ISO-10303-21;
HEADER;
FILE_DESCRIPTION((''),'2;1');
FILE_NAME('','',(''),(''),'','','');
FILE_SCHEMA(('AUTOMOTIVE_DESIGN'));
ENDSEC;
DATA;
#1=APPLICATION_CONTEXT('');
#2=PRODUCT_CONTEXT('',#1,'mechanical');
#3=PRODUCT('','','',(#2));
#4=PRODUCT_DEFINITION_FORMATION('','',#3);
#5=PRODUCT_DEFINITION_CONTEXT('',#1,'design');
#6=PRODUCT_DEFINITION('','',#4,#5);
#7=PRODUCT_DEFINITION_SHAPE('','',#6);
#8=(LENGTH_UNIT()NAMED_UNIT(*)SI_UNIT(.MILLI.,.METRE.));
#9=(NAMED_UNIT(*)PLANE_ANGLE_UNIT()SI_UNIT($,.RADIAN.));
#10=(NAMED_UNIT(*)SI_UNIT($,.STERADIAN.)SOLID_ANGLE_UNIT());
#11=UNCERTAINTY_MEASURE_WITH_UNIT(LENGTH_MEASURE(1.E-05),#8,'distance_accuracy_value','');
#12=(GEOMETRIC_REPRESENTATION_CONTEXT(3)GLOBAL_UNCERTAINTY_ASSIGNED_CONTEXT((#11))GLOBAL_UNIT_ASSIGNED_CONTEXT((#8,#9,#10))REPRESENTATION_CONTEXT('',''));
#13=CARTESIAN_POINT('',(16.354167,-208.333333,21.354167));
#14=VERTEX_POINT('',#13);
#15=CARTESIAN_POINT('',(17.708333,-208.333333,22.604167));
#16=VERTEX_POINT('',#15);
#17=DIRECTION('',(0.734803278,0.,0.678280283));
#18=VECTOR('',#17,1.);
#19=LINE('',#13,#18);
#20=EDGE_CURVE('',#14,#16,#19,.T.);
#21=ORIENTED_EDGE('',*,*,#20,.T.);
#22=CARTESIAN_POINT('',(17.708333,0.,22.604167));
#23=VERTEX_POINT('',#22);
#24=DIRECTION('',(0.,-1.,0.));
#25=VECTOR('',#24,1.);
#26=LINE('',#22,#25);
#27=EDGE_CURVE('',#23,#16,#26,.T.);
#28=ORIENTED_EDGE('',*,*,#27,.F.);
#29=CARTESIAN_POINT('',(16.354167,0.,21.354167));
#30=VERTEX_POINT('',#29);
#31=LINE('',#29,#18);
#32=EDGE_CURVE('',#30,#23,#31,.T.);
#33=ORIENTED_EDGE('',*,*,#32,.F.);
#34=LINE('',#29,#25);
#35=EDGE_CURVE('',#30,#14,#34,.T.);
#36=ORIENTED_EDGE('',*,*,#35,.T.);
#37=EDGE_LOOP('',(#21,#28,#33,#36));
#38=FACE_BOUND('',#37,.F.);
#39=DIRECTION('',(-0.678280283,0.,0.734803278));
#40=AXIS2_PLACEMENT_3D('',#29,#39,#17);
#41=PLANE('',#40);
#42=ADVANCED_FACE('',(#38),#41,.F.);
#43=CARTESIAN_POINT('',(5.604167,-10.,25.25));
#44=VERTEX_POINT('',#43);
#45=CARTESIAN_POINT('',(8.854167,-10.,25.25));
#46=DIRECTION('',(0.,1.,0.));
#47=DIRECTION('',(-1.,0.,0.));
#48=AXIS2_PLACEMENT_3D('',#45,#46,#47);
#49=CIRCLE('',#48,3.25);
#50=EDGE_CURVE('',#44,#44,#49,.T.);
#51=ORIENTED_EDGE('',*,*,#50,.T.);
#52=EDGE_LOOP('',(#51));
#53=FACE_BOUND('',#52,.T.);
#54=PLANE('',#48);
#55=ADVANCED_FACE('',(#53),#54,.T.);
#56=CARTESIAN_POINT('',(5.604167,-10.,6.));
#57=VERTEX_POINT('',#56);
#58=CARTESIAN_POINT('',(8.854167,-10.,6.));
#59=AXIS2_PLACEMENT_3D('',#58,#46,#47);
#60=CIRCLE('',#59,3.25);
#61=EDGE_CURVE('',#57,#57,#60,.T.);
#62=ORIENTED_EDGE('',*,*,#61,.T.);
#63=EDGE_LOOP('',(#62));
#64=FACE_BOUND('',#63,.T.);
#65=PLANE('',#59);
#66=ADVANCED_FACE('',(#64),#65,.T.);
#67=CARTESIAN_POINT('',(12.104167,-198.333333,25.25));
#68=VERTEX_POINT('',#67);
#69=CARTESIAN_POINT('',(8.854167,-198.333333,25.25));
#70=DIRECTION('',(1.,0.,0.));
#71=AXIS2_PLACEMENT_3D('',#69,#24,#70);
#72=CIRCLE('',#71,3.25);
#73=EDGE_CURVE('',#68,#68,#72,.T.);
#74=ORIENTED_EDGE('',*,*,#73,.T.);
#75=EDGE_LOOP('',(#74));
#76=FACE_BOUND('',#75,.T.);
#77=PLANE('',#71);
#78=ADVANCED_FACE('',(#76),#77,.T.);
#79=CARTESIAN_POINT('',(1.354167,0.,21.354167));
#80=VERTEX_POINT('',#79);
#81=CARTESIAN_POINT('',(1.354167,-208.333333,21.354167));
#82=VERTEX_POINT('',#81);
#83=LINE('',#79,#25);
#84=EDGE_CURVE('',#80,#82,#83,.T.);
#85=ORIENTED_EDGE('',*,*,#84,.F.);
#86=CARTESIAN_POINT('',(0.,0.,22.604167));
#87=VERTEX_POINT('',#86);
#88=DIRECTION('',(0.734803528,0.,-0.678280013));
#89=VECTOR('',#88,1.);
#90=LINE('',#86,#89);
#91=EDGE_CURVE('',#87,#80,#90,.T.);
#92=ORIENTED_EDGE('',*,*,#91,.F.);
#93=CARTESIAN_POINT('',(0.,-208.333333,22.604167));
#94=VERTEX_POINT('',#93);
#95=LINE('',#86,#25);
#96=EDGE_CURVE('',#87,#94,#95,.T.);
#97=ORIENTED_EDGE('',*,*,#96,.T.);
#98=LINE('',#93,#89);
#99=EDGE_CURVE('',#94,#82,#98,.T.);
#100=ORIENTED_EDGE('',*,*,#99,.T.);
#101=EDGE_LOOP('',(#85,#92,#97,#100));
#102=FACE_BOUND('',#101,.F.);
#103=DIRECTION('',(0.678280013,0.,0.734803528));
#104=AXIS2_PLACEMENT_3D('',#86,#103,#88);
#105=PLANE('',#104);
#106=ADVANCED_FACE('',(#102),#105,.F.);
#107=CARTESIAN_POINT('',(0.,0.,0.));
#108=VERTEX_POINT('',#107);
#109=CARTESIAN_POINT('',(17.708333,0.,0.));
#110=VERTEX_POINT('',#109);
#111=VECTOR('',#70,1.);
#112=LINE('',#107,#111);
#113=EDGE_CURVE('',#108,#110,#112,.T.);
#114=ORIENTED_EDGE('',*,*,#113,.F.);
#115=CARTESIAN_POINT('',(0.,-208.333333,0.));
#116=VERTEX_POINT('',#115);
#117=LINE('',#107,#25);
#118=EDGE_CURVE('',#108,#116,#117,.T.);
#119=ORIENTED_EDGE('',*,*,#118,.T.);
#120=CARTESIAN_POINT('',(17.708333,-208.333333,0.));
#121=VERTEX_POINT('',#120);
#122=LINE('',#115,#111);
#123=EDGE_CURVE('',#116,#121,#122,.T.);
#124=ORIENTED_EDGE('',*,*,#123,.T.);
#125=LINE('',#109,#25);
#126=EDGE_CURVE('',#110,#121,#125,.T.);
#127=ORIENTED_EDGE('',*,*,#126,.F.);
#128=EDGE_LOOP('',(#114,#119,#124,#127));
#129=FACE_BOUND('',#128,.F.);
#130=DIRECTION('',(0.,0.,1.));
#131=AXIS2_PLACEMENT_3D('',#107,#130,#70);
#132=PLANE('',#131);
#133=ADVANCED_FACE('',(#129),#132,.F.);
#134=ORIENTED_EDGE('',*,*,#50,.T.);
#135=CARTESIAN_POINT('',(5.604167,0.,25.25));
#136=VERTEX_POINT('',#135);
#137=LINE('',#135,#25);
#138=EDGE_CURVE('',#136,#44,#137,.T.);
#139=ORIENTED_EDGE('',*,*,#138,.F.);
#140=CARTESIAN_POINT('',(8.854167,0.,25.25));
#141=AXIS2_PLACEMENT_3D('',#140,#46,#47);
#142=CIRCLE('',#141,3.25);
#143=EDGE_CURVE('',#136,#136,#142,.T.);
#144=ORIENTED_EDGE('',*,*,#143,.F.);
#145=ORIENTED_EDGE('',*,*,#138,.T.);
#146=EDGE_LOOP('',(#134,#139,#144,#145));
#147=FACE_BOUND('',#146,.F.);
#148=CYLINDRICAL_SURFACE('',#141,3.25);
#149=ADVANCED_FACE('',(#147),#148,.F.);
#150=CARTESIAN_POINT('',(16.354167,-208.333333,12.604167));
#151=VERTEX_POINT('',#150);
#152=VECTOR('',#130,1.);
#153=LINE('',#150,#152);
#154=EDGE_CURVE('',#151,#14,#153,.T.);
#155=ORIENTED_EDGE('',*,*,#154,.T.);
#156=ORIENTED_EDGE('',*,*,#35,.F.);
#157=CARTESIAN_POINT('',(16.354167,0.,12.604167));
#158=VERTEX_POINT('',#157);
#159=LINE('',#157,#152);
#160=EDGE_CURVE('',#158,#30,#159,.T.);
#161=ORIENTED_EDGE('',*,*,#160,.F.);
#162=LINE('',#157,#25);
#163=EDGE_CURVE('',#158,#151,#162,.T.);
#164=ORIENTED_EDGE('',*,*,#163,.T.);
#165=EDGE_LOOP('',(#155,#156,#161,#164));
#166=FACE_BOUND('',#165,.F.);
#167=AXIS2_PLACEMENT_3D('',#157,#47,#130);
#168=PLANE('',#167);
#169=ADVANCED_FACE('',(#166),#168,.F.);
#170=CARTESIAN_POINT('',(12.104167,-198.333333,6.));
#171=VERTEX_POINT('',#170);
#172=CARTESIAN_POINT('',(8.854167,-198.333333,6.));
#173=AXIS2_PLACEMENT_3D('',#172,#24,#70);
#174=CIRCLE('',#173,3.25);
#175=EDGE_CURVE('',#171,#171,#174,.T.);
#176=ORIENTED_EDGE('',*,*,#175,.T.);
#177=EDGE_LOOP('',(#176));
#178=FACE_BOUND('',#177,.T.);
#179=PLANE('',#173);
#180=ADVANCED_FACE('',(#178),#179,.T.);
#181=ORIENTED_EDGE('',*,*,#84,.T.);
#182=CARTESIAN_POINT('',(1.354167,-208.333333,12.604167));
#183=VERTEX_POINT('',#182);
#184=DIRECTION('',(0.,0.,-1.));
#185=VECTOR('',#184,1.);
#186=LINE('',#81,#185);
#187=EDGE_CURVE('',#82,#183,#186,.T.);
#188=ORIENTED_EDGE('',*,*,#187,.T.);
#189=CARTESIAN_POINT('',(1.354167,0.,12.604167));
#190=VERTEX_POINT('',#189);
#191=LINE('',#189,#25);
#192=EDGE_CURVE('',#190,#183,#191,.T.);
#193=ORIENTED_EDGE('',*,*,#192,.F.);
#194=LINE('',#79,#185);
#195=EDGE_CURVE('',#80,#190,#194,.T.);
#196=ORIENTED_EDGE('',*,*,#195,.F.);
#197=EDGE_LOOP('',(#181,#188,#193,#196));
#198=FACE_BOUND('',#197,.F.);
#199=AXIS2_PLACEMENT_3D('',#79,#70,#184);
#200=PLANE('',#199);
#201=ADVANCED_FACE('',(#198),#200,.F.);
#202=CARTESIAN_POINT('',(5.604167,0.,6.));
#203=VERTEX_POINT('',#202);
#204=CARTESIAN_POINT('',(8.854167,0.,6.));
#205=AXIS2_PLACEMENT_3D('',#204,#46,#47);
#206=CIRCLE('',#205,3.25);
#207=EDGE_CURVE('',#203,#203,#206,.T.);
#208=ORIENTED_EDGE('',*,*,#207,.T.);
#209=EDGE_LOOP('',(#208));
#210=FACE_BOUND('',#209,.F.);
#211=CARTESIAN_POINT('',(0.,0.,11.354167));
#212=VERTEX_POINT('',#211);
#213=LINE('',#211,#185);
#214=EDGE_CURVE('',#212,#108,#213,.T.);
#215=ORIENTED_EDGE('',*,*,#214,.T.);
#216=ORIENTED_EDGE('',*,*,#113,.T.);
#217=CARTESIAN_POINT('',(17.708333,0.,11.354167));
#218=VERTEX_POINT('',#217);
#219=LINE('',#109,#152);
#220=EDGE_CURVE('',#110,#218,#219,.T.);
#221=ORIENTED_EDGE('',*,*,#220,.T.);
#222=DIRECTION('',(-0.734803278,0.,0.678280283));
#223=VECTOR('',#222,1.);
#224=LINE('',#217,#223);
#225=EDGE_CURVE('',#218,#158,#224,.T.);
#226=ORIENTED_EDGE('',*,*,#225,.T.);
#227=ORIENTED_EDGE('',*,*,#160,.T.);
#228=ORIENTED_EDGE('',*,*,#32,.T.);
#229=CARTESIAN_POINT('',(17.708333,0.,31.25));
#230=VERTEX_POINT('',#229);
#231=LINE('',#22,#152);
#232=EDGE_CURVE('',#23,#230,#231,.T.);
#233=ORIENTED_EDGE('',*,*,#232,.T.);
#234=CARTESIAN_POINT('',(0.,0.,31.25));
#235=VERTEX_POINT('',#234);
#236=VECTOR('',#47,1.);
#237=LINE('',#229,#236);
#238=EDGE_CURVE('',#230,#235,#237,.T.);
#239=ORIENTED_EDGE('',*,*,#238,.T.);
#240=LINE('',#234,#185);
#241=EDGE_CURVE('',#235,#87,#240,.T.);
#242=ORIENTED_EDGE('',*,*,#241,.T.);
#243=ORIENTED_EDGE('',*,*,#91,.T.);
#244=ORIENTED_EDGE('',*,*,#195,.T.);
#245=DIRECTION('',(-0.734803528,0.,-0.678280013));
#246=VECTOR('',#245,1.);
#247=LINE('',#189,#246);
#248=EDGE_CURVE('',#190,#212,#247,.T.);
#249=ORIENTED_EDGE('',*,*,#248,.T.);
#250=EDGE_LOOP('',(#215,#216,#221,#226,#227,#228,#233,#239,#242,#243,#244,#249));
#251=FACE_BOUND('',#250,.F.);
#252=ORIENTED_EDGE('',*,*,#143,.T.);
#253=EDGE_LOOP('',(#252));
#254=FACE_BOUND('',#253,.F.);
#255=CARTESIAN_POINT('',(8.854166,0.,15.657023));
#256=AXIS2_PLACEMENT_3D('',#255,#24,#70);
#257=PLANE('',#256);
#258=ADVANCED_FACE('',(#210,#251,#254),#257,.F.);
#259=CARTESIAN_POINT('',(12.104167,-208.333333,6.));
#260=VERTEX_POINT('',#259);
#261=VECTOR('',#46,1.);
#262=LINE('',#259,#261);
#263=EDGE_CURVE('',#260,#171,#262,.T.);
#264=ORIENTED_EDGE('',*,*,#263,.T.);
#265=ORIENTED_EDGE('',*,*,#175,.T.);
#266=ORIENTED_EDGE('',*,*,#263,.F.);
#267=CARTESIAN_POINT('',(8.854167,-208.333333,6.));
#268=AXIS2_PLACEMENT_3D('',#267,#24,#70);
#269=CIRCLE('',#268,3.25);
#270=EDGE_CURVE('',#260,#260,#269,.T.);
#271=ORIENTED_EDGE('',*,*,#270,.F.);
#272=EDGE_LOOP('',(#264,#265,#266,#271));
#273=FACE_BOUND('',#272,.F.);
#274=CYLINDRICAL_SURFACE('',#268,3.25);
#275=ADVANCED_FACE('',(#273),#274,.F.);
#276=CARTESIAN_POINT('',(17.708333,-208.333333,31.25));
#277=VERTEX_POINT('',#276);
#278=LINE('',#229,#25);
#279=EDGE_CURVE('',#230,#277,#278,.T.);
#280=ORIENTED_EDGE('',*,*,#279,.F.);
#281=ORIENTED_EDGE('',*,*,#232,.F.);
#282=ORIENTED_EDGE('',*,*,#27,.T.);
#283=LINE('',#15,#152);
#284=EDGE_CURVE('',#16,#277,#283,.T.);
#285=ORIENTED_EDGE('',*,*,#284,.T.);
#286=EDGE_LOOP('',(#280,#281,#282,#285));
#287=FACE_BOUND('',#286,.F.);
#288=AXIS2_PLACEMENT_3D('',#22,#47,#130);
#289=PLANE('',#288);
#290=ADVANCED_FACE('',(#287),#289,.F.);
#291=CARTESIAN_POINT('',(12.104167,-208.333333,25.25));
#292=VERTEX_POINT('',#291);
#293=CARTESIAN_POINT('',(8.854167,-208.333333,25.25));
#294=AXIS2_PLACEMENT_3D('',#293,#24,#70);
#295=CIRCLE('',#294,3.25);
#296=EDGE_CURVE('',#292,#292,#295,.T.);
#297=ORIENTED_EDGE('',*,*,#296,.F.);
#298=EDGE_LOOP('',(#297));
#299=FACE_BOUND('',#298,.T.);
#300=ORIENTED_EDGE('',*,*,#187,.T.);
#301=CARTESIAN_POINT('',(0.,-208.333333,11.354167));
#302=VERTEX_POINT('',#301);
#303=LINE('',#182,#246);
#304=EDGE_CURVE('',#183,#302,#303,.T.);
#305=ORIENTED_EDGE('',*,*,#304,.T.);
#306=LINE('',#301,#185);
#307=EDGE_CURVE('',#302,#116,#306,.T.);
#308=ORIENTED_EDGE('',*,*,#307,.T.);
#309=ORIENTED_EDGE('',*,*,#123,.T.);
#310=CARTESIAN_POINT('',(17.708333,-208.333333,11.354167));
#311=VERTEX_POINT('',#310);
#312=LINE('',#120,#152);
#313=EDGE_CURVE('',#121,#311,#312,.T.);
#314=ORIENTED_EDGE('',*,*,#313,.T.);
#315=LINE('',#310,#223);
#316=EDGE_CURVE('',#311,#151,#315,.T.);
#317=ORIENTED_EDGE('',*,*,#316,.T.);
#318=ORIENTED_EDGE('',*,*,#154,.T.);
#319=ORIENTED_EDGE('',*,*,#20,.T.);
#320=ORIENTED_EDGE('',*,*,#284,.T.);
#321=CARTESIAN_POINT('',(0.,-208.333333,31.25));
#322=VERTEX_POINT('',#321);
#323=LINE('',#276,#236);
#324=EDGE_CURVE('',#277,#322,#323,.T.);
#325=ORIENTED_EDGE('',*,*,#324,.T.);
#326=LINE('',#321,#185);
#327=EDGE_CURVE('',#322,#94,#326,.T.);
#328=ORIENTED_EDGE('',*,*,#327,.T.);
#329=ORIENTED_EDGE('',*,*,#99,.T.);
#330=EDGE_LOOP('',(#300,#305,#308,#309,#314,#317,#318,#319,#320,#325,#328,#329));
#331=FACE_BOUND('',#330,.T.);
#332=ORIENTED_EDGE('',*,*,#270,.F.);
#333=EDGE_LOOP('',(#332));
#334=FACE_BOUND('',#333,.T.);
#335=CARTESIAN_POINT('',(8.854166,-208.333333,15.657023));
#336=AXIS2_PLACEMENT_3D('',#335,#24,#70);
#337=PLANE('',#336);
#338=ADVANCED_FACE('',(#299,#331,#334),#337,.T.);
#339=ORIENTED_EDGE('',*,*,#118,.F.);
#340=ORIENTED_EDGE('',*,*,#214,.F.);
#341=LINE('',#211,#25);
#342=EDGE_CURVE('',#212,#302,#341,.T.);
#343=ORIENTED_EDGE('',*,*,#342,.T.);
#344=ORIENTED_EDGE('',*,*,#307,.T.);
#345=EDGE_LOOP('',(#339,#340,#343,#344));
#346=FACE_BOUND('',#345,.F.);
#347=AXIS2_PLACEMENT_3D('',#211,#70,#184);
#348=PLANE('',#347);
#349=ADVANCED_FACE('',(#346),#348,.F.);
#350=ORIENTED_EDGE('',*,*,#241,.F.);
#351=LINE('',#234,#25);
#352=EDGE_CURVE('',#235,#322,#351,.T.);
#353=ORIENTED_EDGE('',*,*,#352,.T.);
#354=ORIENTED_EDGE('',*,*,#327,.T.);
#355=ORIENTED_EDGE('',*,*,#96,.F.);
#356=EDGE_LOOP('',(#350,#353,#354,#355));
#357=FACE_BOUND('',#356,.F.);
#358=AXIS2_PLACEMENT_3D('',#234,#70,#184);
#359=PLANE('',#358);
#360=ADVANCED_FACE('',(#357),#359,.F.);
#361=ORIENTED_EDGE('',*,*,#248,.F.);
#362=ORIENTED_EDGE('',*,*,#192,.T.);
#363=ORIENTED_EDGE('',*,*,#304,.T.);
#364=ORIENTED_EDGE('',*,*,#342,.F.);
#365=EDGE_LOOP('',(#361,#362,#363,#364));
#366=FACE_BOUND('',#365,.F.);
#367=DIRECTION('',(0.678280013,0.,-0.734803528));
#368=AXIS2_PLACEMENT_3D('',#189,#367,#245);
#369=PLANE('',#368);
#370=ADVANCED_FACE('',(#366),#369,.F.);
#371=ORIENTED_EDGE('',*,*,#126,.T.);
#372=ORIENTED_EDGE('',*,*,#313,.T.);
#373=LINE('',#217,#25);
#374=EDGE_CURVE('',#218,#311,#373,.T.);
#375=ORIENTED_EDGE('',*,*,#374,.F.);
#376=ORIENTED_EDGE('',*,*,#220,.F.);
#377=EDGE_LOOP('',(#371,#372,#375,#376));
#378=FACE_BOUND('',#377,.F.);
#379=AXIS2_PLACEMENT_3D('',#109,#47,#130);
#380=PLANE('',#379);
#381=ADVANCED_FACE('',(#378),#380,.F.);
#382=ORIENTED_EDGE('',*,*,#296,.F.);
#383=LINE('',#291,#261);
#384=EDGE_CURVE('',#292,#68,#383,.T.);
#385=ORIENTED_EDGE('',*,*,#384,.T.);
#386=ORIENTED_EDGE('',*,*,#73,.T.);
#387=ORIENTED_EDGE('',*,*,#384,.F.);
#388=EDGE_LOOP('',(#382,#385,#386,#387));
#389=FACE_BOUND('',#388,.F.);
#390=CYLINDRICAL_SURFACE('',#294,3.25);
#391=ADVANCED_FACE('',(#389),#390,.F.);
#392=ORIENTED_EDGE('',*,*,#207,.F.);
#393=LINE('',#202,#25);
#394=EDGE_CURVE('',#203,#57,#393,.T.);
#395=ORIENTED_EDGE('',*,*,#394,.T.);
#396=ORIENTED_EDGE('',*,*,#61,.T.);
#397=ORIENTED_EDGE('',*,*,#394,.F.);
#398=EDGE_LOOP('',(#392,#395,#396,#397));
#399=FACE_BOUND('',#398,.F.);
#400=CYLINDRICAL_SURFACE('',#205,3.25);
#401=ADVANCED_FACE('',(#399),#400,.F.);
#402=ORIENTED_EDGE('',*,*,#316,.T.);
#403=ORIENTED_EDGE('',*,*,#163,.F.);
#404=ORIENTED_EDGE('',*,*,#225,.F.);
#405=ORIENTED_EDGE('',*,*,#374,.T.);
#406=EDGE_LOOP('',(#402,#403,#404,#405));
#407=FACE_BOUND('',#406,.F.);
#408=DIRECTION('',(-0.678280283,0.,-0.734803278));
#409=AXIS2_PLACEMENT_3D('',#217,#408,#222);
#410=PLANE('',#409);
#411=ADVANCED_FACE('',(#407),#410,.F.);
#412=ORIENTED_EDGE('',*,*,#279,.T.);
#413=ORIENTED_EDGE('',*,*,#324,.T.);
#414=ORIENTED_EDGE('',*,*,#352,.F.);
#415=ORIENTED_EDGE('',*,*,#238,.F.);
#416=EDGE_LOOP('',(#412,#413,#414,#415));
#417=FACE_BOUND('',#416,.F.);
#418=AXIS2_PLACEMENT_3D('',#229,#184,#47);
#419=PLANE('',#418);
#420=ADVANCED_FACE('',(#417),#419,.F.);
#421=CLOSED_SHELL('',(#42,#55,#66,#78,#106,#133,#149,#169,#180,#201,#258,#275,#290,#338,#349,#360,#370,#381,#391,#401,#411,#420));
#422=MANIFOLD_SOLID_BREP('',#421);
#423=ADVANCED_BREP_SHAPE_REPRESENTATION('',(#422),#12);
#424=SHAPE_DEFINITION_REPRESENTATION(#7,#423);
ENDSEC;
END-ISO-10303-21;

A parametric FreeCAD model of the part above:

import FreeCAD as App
import Part
import Sketcher
from FreeCAD import Vector
Q = App.Units.Quantity


def add_polygon(sketch, points):
    """Adds a closed chain of lines whose ends are joined by coincident constraints."""
    first, n = sketch.GeometryCount, len(points)
    for a, b in zip(points, points[1:] + points[:1]):
        sketch.addGeometry(Part.LineSegment(App.Vector(*a, 0), App.Vector(*b, 0)), False)
    for i in range(n):
        sketch.addConstraint(Sketcher.Constraint("Coincident", first + i, 2, first + (i + 1) % n, 1))

doc = App.newDocument("Part")
body = doc.addObject("PartDesign::Body", "Body")

sketch1 = body.newObject("Sketcher::SketchObject", "Sketch")
sketch1.AttachmentSupport = (doc.getObject("XZ_Plane"), [""])
sketch1.MapMode = "FlatFace"
add_polygon(sketch1, [(0, 0), (17.708333, 0), (17.708333, 11.354167), (16.354167, 12.604167), (16.354167, 21.354167), (17.708333, 22.604167), (17.708333, 31.25), (0, 31.25), (0, 22.604167), (1.354167, 21.354167), (1.354167, 12.604167), (0, 11.354167)])
sketch1.addConstraint(Sketcher.Constraint("Horizontal", 0))
sketch1.addConstraint(Sketcher.Constraint("Vertical", 1))
sketch1.addConstraint(Sketcher.Constraint("Vertical", 3))
sketch1.addConstraint(Sketcher.Constraint("Vertical", 5))
sketch1.addConstraint(Sketcher.Constraint("Horizontal", 6))
sketch1.addConstraint(Sketcher.Constraint("Vertical", 7))
sketch1.addConstraint(Sketcher.Constraint("Vertical", 9))
sketch1.addConstraint(Sketcher.Constraint("Vertical", 11))
sketch1.addConstraint(Sketcher.Constraint("Coincident", 11, 2, -1, 1))
sketch1.addConstraint(Sketcher.Constraint("PointOnObject", 6, 2, -2))
sketch1.addConstraint(Sketcher.Constraint("Parallel", 2, 8))
sketch1.addConstraint(Sketcher.Constraint("Parallel", 4, 10))
sketch1.addConstraint(Sketcher.Constraint("Horizontal", 4, 2, 7, 2))
sketch1.addConstraint(Sketcher.Constraint("Horizontal", 3, 2, 8, 2))
sketch1.addConstraint(Sketcher.Constraint("Horizontal", 2, 2, 9, 2))
sketch1.addConstraint(Sketcher.Constraint("Horizontal", 1, 2, 10, 2))
sketch1.addConstraint(Sketcher.Constraint("Vertical", 1, 2, 4, 2))
sketch1.addConstraint(Sketcher.Constraint("DistanceY", 1, 2, 3, 2, Q("10 mm")))
sketch1.addConstraint(Sketcher.Constraint("DistanceX", 8, 2, 3, 2, Q("15 mm")))
sketch1.addConstraint(Sketcher.Constraint("DistanceY", 3, 1, 3, 2, Q("8.75 mm")))
sketch1.addConstraint(Sketcher.Constraint("DistanceY", -1, 1, 5, 2, Q("31.25 mm")))
sketch1.addConstraint(Sketcher.Constraint("DistanceX", 0, 1, 0, 2, Q("17.708333 mm")))
sketch1.addConstraint(Sketcher.Constraint("DistanceY", 1, 1, 1, 2, Q("11.354167 mm")))
pad1 = body.newObject("PartDesign::Pad", "Pad")
pad1.Profile = sketch1
pad1.Length = 208.333333

sketch2 = body.newObject("Sketcher::SketchObject", "Sketch001")
sketch2.AttachmentSupport = (doc.getObject("XZ_Plane"), [""])
sketch2.MapMode = "FlatFace"
sketch2.AttachmentOffset = App.Placement(Vector(0, 0, 208.333333), App.Rotation())
sketch2.addGeometry(Part.Circle(Vector(8.854167, 6, 0), Vector(0, 0, 1), 3.25), False)
sketch2.addGeometry(Part.Circle(Vector(8.854167, 25.25, 0), Vector(0, 0, 1), 3.25), False)
sketch2.addConstraint(Sketcher.Constraint("Equal", 0, 1))
sketch2.addConstraint(Sketcher.Constraint("Vertical", 0, 3, 1, 3))
sketch2.addConstraint(Sketcher.Constraint("Diameter", 0, Q("6.5 mm")))
sketch2.addConstraint(Sketcher.Constraint("DistanceY", -1, 1, 0, 3, Q("6 mm")))
sketch2.addConstraint(Sketcher.Constraint("DistanceY", -1, 1, 1, 3, Q("25.25 mm")))
sketch2.addConstraint(Sketcher.Constraint("DistanceX", -1, 1, 0, 3, Q("8.854167 mm")))
pocket1 = body.newObject("PartDesign::Pocket", "Pocket")
pocket1.Profile = sketch2
pocket1.Length = 10

sketch3 = body.newObject("Sketcher::SketchObject", "Sketch002")
sketch3.AttachmentSupport = (doc.getObject("XZ_Plane"), [""])
sketch3.MapMode = "FlatFace"
sketch3.addGeometry(Part.Circle(Vector(8.854167, 6, 0), Vector(0, 0, 1), 3.25), False)
sketch3.addGeometry(Part.Circle(Vector(8.854167, 25.25, 0), Vector(0, 0, 1), 3.25), False)
sketch3.addConstraint(Sketcher.Constraint("Equal", 0, 1))
sketch3.addConstraint(Sketcher.Constraint("Vertical", 0, 3, 1, 3))
sketch3.addConstraint(Sketcher.Constraint("Diameter", 0, Q("6.5 mm")))
sketch3.addConstraint(Sketcher.Constraint("DistanceY", -1, 1, 0, 3, Q("6 mm")))
sketch3.addConstraint(Sketcher.Constraint("DistanceY", -1, 1, 1, 3, Q("25.25 mm")))
sketch3.addConstraint(Sketcher.Constraint("DistanceX", -1, 1, 0, 3, Q("8.854167 mm")))
pocket2 = body.newObject("PartDesign::Pocket", "Pocket001")
pocket2.Profile = sketch3
pocket2.Length = 10
pocket2.Reversed = True

doc.recompute()
